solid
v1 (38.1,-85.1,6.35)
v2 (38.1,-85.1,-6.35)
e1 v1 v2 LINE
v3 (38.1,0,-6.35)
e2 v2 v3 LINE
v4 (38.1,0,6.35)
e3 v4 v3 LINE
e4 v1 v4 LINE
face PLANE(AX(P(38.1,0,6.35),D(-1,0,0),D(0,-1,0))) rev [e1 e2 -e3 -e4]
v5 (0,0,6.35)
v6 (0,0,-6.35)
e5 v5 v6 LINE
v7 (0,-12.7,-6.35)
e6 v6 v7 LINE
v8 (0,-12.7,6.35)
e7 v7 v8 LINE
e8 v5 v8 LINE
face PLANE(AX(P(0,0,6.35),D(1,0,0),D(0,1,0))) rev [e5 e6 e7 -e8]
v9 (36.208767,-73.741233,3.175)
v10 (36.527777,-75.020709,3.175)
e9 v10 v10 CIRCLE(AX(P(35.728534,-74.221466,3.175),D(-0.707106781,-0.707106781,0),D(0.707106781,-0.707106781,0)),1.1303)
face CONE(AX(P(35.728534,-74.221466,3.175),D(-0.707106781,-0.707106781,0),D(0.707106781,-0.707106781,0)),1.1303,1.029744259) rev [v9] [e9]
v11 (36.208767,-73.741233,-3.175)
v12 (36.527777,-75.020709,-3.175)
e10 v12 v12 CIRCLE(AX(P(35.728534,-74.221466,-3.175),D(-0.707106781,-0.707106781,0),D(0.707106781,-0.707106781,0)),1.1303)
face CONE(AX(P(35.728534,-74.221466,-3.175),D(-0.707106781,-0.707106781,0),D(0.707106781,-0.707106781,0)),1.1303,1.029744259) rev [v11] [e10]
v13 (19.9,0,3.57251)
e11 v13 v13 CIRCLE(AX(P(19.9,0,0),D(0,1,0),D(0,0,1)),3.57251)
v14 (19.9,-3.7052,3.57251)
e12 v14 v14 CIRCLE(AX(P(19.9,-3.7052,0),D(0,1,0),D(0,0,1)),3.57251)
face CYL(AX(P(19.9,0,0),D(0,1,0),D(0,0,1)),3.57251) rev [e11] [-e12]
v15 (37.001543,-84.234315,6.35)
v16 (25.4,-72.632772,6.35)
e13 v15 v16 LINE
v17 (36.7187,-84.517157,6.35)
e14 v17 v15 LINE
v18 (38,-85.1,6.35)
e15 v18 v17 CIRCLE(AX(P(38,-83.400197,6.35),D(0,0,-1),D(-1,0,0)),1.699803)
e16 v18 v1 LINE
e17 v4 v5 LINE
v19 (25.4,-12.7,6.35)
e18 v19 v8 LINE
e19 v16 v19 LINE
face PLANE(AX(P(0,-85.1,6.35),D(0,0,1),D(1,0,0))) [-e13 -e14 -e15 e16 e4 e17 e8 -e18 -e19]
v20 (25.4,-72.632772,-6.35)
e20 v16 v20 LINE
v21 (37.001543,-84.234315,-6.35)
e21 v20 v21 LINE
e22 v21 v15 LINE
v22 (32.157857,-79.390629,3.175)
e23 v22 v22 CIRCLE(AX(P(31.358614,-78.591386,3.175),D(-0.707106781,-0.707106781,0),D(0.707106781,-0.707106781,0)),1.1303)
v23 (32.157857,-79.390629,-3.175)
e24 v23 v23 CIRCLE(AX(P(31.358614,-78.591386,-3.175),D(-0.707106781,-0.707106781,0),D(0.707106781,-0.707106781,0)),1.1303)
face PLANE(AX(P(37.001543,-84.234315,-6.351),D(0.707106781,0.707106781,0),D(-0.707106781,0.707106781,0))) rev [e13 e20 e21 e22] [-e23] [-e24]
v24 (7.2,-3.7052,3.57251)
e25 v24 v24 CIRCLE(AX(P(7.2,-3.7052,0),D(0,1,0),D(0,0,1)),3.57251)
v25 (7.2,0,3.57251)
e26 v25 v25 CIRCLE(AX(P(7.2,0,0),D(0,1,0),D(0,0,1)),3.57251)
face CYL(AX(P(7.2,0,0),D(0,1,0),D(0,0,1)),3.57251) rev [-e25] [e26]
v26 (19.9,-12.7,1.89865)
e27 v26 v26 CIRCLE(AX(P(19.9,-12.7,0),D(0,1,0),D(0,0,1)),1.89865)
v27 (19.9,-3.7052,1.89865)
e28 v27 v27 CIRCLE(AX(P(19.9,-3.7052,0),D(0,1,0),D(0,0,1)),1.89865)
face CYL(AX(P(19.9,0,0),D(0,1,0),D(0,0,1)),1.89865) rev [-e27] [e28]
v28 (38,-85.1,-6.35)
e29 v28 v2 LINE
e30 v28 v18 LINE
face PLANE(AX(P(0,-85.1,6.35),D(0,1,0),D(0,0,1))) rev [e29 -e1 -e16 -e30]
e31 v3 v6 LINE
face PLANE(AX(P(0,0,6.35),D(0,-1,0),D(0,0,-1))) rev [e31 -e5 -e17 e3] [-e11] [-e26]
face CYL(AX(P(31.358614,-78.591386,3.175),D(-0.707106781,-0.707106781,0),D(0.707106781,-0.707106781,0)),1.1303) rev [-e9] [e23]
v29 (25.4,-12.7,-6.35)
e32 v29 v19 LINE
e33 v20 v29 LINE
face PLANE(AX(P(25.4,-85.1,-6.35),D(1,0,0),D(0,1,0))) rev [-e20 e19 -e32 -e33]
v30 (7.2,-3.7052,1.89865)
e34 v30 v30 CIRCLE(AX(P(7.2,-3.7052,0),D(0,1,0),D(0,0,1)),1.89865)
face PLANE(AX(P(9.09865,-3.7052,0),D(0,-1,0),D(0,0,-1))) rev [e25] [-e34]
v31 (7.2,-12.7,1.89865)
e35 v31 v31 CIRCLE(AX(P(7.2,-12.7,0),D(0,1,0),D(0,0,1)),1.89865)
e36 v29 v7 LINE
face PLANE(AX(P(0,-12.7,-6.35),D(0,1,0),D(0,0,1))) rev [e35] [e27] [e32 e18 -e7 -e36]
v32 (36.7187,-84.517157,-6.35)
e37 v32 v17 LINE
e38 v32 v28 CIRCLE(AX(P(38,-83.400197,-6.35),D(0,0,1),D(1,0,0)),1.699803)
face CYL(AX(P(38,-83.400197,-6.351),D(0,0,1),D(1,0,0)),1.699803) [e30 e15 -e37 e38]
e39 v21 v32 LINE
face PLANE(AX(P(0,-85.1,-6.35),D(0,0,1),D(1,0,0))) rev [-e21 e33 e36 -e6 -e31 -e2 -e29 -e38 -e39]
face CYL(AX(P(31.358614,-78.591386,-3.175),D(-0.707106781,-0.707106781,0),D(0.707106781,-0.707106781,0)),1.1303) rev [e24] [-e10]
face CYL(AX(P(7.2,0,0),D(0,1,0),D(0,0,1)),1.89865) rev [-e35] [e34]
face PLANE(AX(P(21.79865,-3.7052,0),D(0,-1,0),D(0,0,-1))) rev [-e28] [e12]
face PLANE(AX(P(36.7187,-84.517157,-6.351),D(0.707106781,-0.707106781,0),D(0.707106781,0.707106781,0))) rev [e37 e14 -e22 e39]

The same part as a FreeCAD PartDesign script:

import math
import FreeCAD as App
import Part
import Sketcher
from FreeCAD import Vector
Q = App.Units.Quantity


def add_polygon(sketch, points):
    """Adds a closed chain of lines whose ends are joined by coincident constraints."""
    first, n = sketch.GeometryCount, len(points)
    for a, b in zip(points, points[1:] + points[:1]):
        sketch.addGeometry(Part.LineSegment(App.Vector(*a, 0), App.Vector(*b, 0)), False)
    for i in range(n):
        sketch.addConstraint(Sketcher.Constraint("Coincident", first + i, 2, first + (i + 1) % n, 1))

doc = App.newDocument("Part")
body = doc.addObject("PartDesign::Body", "Body")

sketch1 = body.newObject("Sketcher::SketchObject", "Sketch")
sketch1.AttachmentSupport = (doc.getObject("XY_Plane"), [""])
sketch1.MapMode = "FlatFace"
add_polygon(sketch1, [(0, 0), (0, -85), (38, -85), (38, 0)])
sketch1.addConstraint(Sketcher.Constraint("Vertical", 0))
sketch1.addConstraint(Sketcher.Constraint("Horizontal", 1))
sketch1.addConstraint(Sketcher.Constraint("Vertical", 2))
sketch1.addConstraint(Sketcher.Constraint("Horizontal", 3))
sketch1.addConstraint(Sketcher.Constraint("Coincident", 3, 2, -1, 1))
sketch1.addConstraint(Sketcher.Constraint("DistanceX", 1, 1, 1, 2, Q("38.1 mm")))
sketch1.addConstraint(Sketcher.Constraint("DistanceY", 0, 2, 0, 1, Q("85.1 mm")))
pad1 = body.newObject("PartDesign::Pad", "Pad")
pad1.Profile = sketch1
pad1.Length = 12.7
pad1.Midplane = True

sketch2 = body.newObject("Sketcher::SketchObject", "Sketch001")
sketch2.AttachmentSupport = (doc.getObject("XY_Plane"), [""])
sketch2.MapMode = "FlatFace"
sketch2.AttachmentOffset = App.Placement(Vector(0, 0, 6.35), App.Rotation())
add_polygon(sketch2, [(0, -13), (0, -85), (25, -85), (25, -13)])
sketch2.addConstraint(Sketcher.Constraint("Vertical", 0))
sketch2.addConstraint(Sketcher.Constraint("Horizontal", 1))
sketch2.addConstraint(Sketcher.Constraint("Vertical", 2))
sketch2.addConstraint(Sketcher.Constraint("Horizontal", 3))
sketch2.addConstraint(Sketcher.Constraint("PointOnObject", 0, 2, -2))
sketch2.addConstraint(Sketcher.Constraint("DistanceX", 1, 1, 1, 2, Q("25.4 mm")))
sketch2.addConstraint(Sketcher.Constraint("DistanceY", 0, 2, 0, 1, Q("72.4 mm")))
sketch2.addConstraint(Sketcher.Constraint("DistanceY", 0, 2, -1, 1, Q("85.1 mm")))
pocket1 = body.newObject("PartDesign::Pocket", "Pocket")
pocket1.Profile = sketch2
pocket1.Type = "ThroughAll"

sketch3 = body.newObject("Sketcher::SketchObject", "Sketch002")
sketch3.AttachmentSupport = (doc.getObject("XZ_Plane"), [""])
sketch3.MapMode = "FlatFace"
sketch3.addGeometry(Part.Circle(Vector(7.2, 0, 0), Vector(0, 0, 1), 1.9), False)
sketch3.addGeometry(Part.Circle(Vector(19.9, 0, 0), Vector(0, 0, 1), 1.9), False)
sketch3.addConstraint(Sketcher.Constraint("Equal", 0, 1))
sketch3.addConstraint(Sketcher.Constraint("PointOnObject", 0, 3, -1))
sketch3.addConstraint(Sketcher.Constraint("PointOnObject", 1, 3, -1))
sketch3.addConstraint(Sketcher.Constraint("Diameter", 0, Q("3.7973 mm")))
sketch3.addConstraint(Sketcher.Constraint("DistanceX", -1, 1, 0, 3, Q("7.2 mm")))
sketch3.addConstraint(Sketcher.Constraint("DistanceX", -1, 1, 1, 3, Q("19.9 mm")))
doc.recompute()
hole = body.newObject("PartDesign::Hole", "Hole")
hole.Profile = sketch3
hole.ThreadType = "None"
hole.Diameter = 3.7973
hole.DepthType = "ThroughAll"
hole.HoleCutType = "Counterbore"
hole.HoleCutDiameter = 7.14502
hole.HoleCutDepth = 3.7052
hole.Reversed = True

sketch4 = body.newObject("Sketcher::SketchObject", "Sketch003")
sketch4.AttachmentSupport = (doc.getObject("XY_Plane"), [""])
sketch4.MapMode = "FlatFace"
sketch4.AttachmentOffset = App.Placement(Vector(0, 0, 6.35), App.Rotation())
sketch4.addGeometry(Part.LineSegment(Vector(36.7, -84.8, 0), Vector(25.4, -84.8, 0)), False)
sketch4.addGeometry(Part.LineSegment(Vector(25.4, -84.8, 0), Vector(25.4, -88.1, 0)), False)
sketch4.addGeometry(Part.LineSegment(Vector(25.4, -88.1, 0), Vector(38.1, -88.1, 0)), False)
sketch4.addGeometry(Part.LineSegment(Vector(38.1, -88.1, 0), Vector(38.1, -85.1, 0)), False)
sketch4.addGeometry(Part.LineSegment(Vector(38.1, -85.1, 0), Vector(37.4, -85.1, 0)), False)
sketch4.addGeometry(Part.ArcOfCircle(Part.Circle(Vector(37.4, -84.1, 0), Vector(0, 0, 1), 1), math.radians(-136), math.radians(-90)), False)
sketch4.addConstraint(Sketcher.Constraint("Coincident", 0, 2, 1, 1))
sketch4.addConstraint(Sketcher.Constraint("Coincident", 1, 2, 2, 1))
sketch4.addConstraint(Sketcher.Constraint("Coincident", 2, 2, 3, 1))
sketch4.addConstraint(Sketcher.Constraint("Coincident", 3, 2, 4, 1))
sketch4.addConstraint(Sketcher.Constraint("Tangent", 4, 2, 5, 2))
sketch4.addConstraint(Sketcher.Constraint("Coincident", 5, 1, 0, 1))
sketch4.addConstraint(Sketcher.Constraint("Horizontal", 0))
sketch4.addConstraint(Sketcher.Constraint("Vertical", 1))
sketch4.addConstraint(Sketcher.Constraint("Horizontal", 2))
sketch4.addConstraint(Sketcher.Constraint("Vertical", 3))
sketch4.addConstraint(Sketcher.Constraint("Horizontal", 4))
sketch4.addConstraint(Sketcher.Constraint("Radius", 5, Q("1 mm")))
sketch4.addConstraint(Sketcher.Constraint("DistanceY", 3, 1, 3, 2, Q("3 mm")))
sketch4.addConstraint(Sketcher.Constraint("DistanceX", 2, 1, 2, 2, Q("12.7 mm")))
sketch4.addConstraint(Sketcher.Constraint("DistanceX", 4, 2, 4, 1, Q("0.7 mm")))
sketch4.addConstraint(Sketcher.Constraint("DistanceY", 1, 2, 1, 1, Q("3.3 mm")))
sketch4.addConstraint(Sketcher.Constraint("DistanceX", -1, 1, 5, 3, Q("37.4 mm")))
sketch4.addConstraint(Sketcher.Constraint("DistanceY", 5, 3, -1, 1, Q("84.1 mm")))
pocket2 = body.newObject("PartDesign::Pocket", "Pocket001")
pocket2.Profile = sketch4
pocket2.Type = "ThroughAll"

sketch5 = body.newObject("Sketcher::SketchObject", "Sketch004")
sketch5.AttachmentSupport = (doc.getObject("XY_Plane"), [""])
sketch5.MapMode = "FlatFace"
sketch5.AttachmentOffset = App.Placement(Vector(0, 0, 6.35), App.Rotation())
sketch5.addGeometry(Part.LineSegment(Vector(38.1, -85.1, 0), Vector(38, -85.1, 0)), False)
sketch5.addGeometry(Part.ArcOfCircle(Part.Circle(Vector(38, -83.4, 0), Vector(0, 0, 1), 1.7), math.radians(-139), math.radians(-90)), False)
sketch5.addGeometry(Part.LineSegment(Vector(36.72, -84.52, 0), Vector(37, -84.23, 0)), False)
sketch5.addGeometry(Part.LineSegment(Vector(37, -84.23, 0), Vector(25.4, -72.63, 0)), False)
sketch5.addGeometry(Part.LineSegment(Vector(25.4, -72.63, 0), Vector(22.89, -72.63, 0)), False)
sketch5.addGeometry(Part.LineSegment(Vector(22.89, -72.63, 0), Vector(22.89, -86.86, 0)), False)
sketch5.addGeometry(Part.LineSegment(Vector(22.89, -86.86, 0), Vector(38.1, -86.86, 0)), False)
sketch5.addGeometry(Part.LineSegment(Vector(38.1, -86.86, 0), Vector(38.1, -85.1, 0)), False)
sketch5.addConstraint(Sketcher.Constraint("Tangent", 0, 2, 1, 2))
sketch5.addConstraint(Sketcher.Constraint("Coincident", 1, 1, 2, 1))
sketch5.addConstraint(Sketcher.Constraint("Coincident", 2, 2, 3, 1))
sketch5.addConstraint(Sketcher.Constraint("Coincident", 3, 2, 4, 1))
sketch5.addConstraint(Sketcher.Constraint("Coincident", 4, 2, 5, 1))
sketch5.addConstraint(Sketcher.Constraint("Coincident", 5, 2, 6, 1))
sketch5.addConstraint(Sketcher.Constraint("Coincident", 6, 2, 7, 1))
sketch5.addConstraint(Sketcher.Constraint("Coincident", 7, 2, 0, 1))
sketch5.addConstraint(Sketcher.Constraint("Horizontal", 0))
sketch5.addConstraint(Sketcher.Constraint("Horizontal", 4))
sketch5.addConstraint(Sketcher.Constraint("Vertical", 5))
sketch5.addConstraint(Sketcher.Constraint("Horizontal", 6))
sketch5.addConstraint(Sketcher.Constraint("Vertical", 7))
sketch5.addConstraint(Sketcher.Constraint("Perpendicular", 2, 3))
sketch5.addConstraint(Sketcher.Constraint("Angle", 2, Q("45 deg")))
sketch5.addConstraint(Sketcher.Constraint("DistanceX", 0, 2, 0, 1, Q("0.1 mm")))
sketch5.addConstraint(Sketcher.Constraint("DistanceX", -1, 1, 1, 3, Q("38 mm")))
sketch5.addConstraint(Sketcher.Constraint("Distance", 2, Q("0.4 mm")))
sketch5.addConstraint(Sketcher.Constraint("DistanceY", 0, 2, -1, 1, Q("85.1 mm")))
sketch5.addConstraint(Sketcher.Constraint("DistanceX", -1, 1, 3, 2, Q("25.4 mm")))
sketch5.addConstraint(Sketcher.Constraint("Radius", 1, Q("1.699803 mm")))
sketch5.addConstraint(Sketcher.Constraint("DistanceX", -1, 1, 1, 1, Q("36.7187 mm")))
sketch5.addConstraint(Sketcher.Constraint("DistanceX", 4, 2, 4, 1, Q("2.505195 mm")))
sketch5.addConstraint(Sketcher.Constraint("DistanceY", 5, 2, 5, 1, Q("14.229513 mm")))
pocket3 = body.newObject("PartDesign::Pocket", "Pocket002")
pocket3.Profile = sketch5
pocket3.Type = "UpToFirst"

sketch6 = body.newObject("Sketcher::SketchObject", "Sketch005")
sketch6.Placement = App.Placement(Vector(-23.616386, -23.616386, 0), App.Rotation(Vector(0.707106781, -0.707106781, 0), Vector(0, 0, 0.999999999), Vector(-0.707106781, -0.707106781, 0), "ZXY"))
sketch6.addGeometry(Part.Circle(Vector(77.7, 3.2, 0), Vector(0, 0, 1), 1.1), False)
sketch6.addGeometry(Part.Circle(Vector(77.7, -3.2, 0), Vector(0, 0, 1), 1.1), False)
sketch6.addConstraint(Sketcher.Constraint("Equal", 0, 1))
sketch6.addConstraint(Sketcher.Constraint("Symmetric", 0, 3, 1, 3, -1))
sketch6.addConstraint(Sketcher.Constraint("Diameter", 0, Q("2.2606 mm")))
sketch6.addConstraint(Sketcher.Constraint("DistanceY", 1, 3, 0, 3, Q("6.35 mm")))
sketch6.addConstraint(Sketcher.Constraint("DistanceX", -1, 1, 0, 3, Q("77.746391 mm")))
doc.recompute()
hole2 = body.newObject("PartDesign::Hole", "Hole001")
hole2.Profile = sketch6
hole2.ThreadType = "None"
hole2.Diameter = 2.2606
hole2.DepthType = "Dimension"
hole2.Depth = 6.18
hole2.DrillPoint = "Angled"
hole2.DrillPointAngle = 118

doc.recompute()
